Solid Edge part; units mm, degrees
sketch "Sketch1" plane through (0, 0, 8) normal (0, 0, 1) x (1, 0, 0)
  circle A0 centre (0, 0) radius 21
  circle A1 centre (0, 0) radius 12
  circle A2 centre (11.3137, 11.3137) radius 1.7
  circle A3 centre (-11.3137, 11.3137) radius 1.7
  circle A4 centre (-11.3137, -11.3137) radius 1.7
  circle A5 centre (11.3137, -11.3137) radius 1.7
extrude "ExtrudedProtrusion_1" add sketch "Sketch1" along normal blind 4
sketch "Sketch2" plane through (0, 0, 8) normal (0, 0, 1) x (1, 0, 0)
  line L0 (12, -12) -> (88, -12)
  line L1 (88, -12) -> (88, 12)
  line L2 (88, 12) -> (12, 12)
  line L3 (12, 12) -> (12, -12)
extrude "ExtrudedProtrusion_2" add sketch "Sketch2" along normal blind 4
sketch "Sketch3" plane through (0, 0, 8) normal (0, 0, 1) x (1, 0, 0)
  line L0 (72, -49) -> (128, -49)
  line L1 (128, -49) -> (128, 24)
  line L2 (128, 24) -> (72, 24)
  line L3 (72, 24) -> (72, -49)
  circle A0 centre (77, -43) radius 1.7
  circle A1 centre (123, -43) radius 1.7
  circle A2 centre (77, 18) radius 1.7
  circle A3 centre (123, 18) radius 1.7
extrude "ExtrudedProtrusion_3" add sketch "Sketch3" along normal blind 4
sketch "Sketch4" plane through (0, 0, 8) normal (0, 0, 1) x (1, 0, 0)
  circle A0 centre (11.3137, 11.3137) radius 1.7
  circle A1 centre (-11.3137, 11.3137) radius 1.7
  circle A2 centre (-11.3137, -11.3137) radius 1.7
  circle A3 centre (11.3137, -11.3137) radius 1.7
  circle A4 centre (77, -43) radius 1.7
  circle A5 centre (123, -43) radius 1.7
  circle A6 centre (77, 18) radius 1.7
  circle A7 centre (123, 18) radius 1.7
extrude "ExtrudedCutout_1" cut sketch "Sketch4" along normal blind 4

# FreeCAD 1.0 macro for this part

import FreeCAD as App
import Part
import Sketcher
from FreeCAD import Vector

doc = App.newDocument("Part")
body = doc.addObject("PartDesign::Body", "Body")

sketch1 = doc.addObject("Sketcher::SketchObject", "Sketch")
body.addObject(sketch1)
sketch1.AttachmentSupport = (doc.XY_Plane, [""])
sketch1.MapMode = "FlatFace"
sketch1.AttachmentOffset = App.Placement(Vector(0, 0, 8), App.Rotation())
sketch1.addGeometry([
    Part.Circle(Vector(0, 0, 0), Vector(0, 0, 1), 21),
    Part.Circle(Vector(-11.3, -11.3, 0), Vector(0, 0, 1), 1.7),
    Part.Circle(Vector(11.3, -11.3, 0), Vector(0, 0, 1), 1.7),
    Part.Circle(Vector(-11.3, 11.3, 0), Vector(0, 0, 1), 1.7),
    Part.Circle(Vector(0, 0, 0), Vector(0, 0, 1), 12),
    Part.Circle(Vector(11.3, 11.3, 0), Vector(0, 0, 1), 1.7),
], False)
sketch1.addConstraint([
    Sketcher.Constraint("Coincident", 0, 3, -1, 1),
    Sketcher.Constraint("Coincident", 4, 3, -1, 1),
    Sketcher.Constraint("Equal", 1, 2),
    Sketcher.Constraint("Equal", 2, 3),
    Sketcher.Constraint("Equal", 3, 5),
    Sketcher.Constraint("Symmetric", 2, 3, 3, 3, -1, 1),
    Sketcher.Constraint("Symmetric", 1, 3, 5, 3, -1, 1),
    Sketcher.Constraint("Symmetric", 1, 3, 2, 3, -2),
    Sketcher.Constraint("Diameter", 0, 42.0),
    Sketcher.Constraint("Diameter", 4, 24.0),
    Sketcher.Constraint("Diameter", 1, 3.4),
    Sketcher.Constraint("DistanceX", 1, 3, -1, 1, 11.3137),
    Sketcher.Constraint("DistanceY", 1, 3, -1, 1, 11.3137),
])
pad1 = doc.addObject("PartDesign::Pad", "Pad")
body.addObject(pad1)
pad1.Profile = sketch1
pad1.Length = 4

sketch2 = doc.addObject("Sketcher::SketchObject", "Sketch001")
body.addObject(sketch2)
sketch2.AttachmentSupport = (doc.XY_Plane, [""])
sketch2.MapMode = "FlatFace"
sketch2.AttachmentOffset = App.Placement(Vector(0, 0, 8), App.Rotation())
sketch2.addGeometry([
    Part.LineSegment(Vector(12, 12, 0), Vector(12, -12, 0)),
    Part.LineSegment(Vector(12, -12, 0), Vector(88, -12, 0)),
    Part.LineSegment(Vector(88, -12, 0), Vector(88, 12, 0)),
    Part.LineSegment(Vector(88, 12, 0), Vector(12, 12, 0)),
], False)
sketch2.addConstraint([
    Sketcher.Constraint("Coincident", 0, 2, 1, 1),
    Sketcher.Constraint("Coincident", 1, 2, 2, 1),
    Sketcher.Constraint("Coincident", 2, 2, 3, 1),
    Sketcher.Constraint("Coincident", 3, 2, 0, 1),
    Sketcher.Constraint("Vertical", 0),
    Sketcher.Constraint("Horizontal", 1),
    Sketcher.Constraint("Vertical", 2),
    Sketcher.Constraint("Horizontal", 3),
    Sketcher.Constraint("DistanceX", 1, 1, 1, 2, 76.0),
    Sketcher.Constraint("DistanceY", 0, 2, 0, 1, 24.0),
    Sketcher.Constraint("DistanceX", -1, 1, 0, 2, 12.0),
    Sketcher.Constraint("DistanceY", 0, 2, -1, 1, 12.0),
])
pad2 = doc.addObject("PartDesign::Pad", "Pad001")
body.addObject(pad2)
pad2.Profile = sketch2
pad2.Length = 4

sketch3 = doc.addObject("Sketcher::SketchObject", "Sketch002")
body.addObject(sketch3)
sketch3.AttachmentSupport = (doc.XY_Plane, [""])
sketch3.MapMode = "FlatFace"
sketch3.AttachmentOffset = App.Placement(Vector(0, 0, 8), App.Rotation())
sketch3.addGeometry([
    Part.LineSegment(Vector(72, 24, 0), Vector(72, -49, 0)),
    Part.LineSegment(Vector(72, -49, 0), Vector(128, -49, 0)),
    Part.LineSegment(Vector(128, -49, 0), Vector(128, 24, 0)),
    Part.LineSegment(Vector(128, 24, 0), Vector(72, 24, 0)),
    Part.Circle(Vector(77, -43, 0), Vector(0, 0, 1), 1.7),
    Part.Circle(Vector(123, -43, 0), Vector(0, 0, 1), 1.7),
    Part.Circle(Vector(77, 18, 0), Vector(0, 0, 1), 1.7),
    Part.Circle(Vector(123, 18, 0), Vector(0, 0, 1), 1.7),
], False)
sketch3.addConstraint([
    Sketcher.Constraint("Coincident", 0, 2, 1, 1),
    Sketcher.Constraint("Coincident", 1, 2, 2, 1),
    Sketcher.Constraint("Coincident", 2, 2, 3, 1),
    Sketcher.Constraint("Coincident", 3, 2, 0, 1),
    Sketcher.Constraint("Vertical", 0),
    Sketcher.Constraint("Horizontal", 1),
    Sketcher.Constraint("Vertical", 2),
    Sketcher.Constraint("Horizontal", 3),
    Sketcher.Constraint("Equal", 4, 5),
    Sketcher.Constraint("Equal", 5, 6),
    Sketcher.Constraint("Equal", 6, 7),
    Sketcher.Constraint("Horizontal", 4, 3, 5, 3),
    Sketcher.Constraint("Horizontal", 6, 3, 7, 3),
    Sketcher.Constraint("Vertical", 4, 3, 6, 3),
    Sketcher.Constraint("Vertical", 5, 3, 7, 3),
    Sketcher.Constraint("Diameter", 4, 3.4),
    Sketcher.Constraint("DistanceX", 1, 1, 1, 2, 56.0),
    Sketcher.Constraint("DistanceY", 0, 2, 0, 1, 73.0),
    Sketcher.Constraint("DistanceX", -1, 1, 4, 3, 77.0),
    Sketcher.Constraint("DistanceY", 4, 3, -1, 1, 43.0),
    Sketcher.Constraint("DistanceX", -1, 1, 5, 3, 123.0),
    Sketcher.Constraint("DistanceY", -1, 1, 6, 3, 18.0),
    Sketcher.Constraint("DistanceX", -1, 1, 0, 2, 72.0),
    Sketcher.Constraint("DistanceY", 0, 2, -1, 1, 49.0),
])
pad3 = doc.addObject("PartDesign::Pad", "Pad002")
body.addObject(pad3)
pad3.Profile = sketch3
pad3.Length = 4

sketch4 = doc.addObject("Sketcher::SketchObject", "Sketch003")
body.addObject(sketch4)
sketch4.AttachmentSupport = (doc.XY_Plane, [""])
sketch4.MapMode = "FlatFace"
sketch4.AttachmentOffset = App.Placement(Vector(0, 0, 8), App.Rotation())
sketch4.addGeometry([
    Part.Circle(Vector(11.3, 11.3, 0), Vector(0, 0, 1), 1.7),
    Part.Circle(Vector(-11.3, 11.3, 0), Vector(0, 0, 1), 1.7),
    Part.Circle(Vector(-11.3, -11.3, 0), Vector(0, 0, 1), 1.7),
    Part.Circle(Vector(11.3, -11.3, 0), Vector(0, 0, 1), 1.7),
    Part.Circle(Vector(77, -43, 0), Vector(0, 0, 1), 1.7),
    Part.Circle(Vector(123, -43, 0), Vector(0, 0, 1), 1.7),
    Part.Circle(Vector(77, 18, 0), Vector(0, 0, 1), 1.7),
    Part.Circle(Vector(123, 18, 0), Vector(0, 0, 1), 1.7),
], False)
sketch4.addConstraint([
    Sketcher.Constraint("Equal", 0, 1),
    Sketcher.Constraint("Equal", 1, 2),
    Sketcher.Constraint("Equal", 2, 3),
    Sketcher.Constraint("Equal", 3, 4),
    Sketcher.Constraint("Equal", 4, 5),
    Sketcher.Constraint("Equal", 5, 6),
    Sketcher.Constraint("Equal", 6, 7),
    Sketcher.Constraint("Symmetric", 0, 3, 2, 3, -1, 1),
    Sketcher.Constraint("Symmetric", 1, 3, 3, 3, -1, 1),
    Sketcher.Constraint("Symmetric", 0, 3, 1, 3, -2),
    Sketcher.Constraint("Horizontal", 4, 3, 5, 3),
    Sketcher.Constraint("Horizontal", 6, 3, 7, 3),
    Sketcher.Constraint("Vertical", 4, 3, 6, 3),
    Sketcher.Constraint("Vertical", 5, 3, 7, 3),
    Sketcher.Constraint("Diameter", 0, 3.4),
    Sketcher.Constraint("DistanceX", -1, 1, 4, 3, 77.0),
    Sketcher.Constraint("DistanceY", 4, 3, -1, 1, 43.0),
    Sketcher.Constraint("DistanceX", -1, 1, 5, 3, 123.0),
    Sketcher.Constraint("DistanceY", -1, 1, 6, 3, 18.0),
    Sketcher.Constraint("DistanceX", -1, 1, 0, 3, 11.3137),
    Sketcher.Constraint("DistanceY", -1, 1, 0, 3, 11.3137),
])
pocket1 = doc.addObject("PartDesign::Pocket", "Pocket")
body.addObject(pocket1)
pocket1.Profile = sketch4
pocket1.Length = 4
pocket1.Reversed = True

doc.recompute()
